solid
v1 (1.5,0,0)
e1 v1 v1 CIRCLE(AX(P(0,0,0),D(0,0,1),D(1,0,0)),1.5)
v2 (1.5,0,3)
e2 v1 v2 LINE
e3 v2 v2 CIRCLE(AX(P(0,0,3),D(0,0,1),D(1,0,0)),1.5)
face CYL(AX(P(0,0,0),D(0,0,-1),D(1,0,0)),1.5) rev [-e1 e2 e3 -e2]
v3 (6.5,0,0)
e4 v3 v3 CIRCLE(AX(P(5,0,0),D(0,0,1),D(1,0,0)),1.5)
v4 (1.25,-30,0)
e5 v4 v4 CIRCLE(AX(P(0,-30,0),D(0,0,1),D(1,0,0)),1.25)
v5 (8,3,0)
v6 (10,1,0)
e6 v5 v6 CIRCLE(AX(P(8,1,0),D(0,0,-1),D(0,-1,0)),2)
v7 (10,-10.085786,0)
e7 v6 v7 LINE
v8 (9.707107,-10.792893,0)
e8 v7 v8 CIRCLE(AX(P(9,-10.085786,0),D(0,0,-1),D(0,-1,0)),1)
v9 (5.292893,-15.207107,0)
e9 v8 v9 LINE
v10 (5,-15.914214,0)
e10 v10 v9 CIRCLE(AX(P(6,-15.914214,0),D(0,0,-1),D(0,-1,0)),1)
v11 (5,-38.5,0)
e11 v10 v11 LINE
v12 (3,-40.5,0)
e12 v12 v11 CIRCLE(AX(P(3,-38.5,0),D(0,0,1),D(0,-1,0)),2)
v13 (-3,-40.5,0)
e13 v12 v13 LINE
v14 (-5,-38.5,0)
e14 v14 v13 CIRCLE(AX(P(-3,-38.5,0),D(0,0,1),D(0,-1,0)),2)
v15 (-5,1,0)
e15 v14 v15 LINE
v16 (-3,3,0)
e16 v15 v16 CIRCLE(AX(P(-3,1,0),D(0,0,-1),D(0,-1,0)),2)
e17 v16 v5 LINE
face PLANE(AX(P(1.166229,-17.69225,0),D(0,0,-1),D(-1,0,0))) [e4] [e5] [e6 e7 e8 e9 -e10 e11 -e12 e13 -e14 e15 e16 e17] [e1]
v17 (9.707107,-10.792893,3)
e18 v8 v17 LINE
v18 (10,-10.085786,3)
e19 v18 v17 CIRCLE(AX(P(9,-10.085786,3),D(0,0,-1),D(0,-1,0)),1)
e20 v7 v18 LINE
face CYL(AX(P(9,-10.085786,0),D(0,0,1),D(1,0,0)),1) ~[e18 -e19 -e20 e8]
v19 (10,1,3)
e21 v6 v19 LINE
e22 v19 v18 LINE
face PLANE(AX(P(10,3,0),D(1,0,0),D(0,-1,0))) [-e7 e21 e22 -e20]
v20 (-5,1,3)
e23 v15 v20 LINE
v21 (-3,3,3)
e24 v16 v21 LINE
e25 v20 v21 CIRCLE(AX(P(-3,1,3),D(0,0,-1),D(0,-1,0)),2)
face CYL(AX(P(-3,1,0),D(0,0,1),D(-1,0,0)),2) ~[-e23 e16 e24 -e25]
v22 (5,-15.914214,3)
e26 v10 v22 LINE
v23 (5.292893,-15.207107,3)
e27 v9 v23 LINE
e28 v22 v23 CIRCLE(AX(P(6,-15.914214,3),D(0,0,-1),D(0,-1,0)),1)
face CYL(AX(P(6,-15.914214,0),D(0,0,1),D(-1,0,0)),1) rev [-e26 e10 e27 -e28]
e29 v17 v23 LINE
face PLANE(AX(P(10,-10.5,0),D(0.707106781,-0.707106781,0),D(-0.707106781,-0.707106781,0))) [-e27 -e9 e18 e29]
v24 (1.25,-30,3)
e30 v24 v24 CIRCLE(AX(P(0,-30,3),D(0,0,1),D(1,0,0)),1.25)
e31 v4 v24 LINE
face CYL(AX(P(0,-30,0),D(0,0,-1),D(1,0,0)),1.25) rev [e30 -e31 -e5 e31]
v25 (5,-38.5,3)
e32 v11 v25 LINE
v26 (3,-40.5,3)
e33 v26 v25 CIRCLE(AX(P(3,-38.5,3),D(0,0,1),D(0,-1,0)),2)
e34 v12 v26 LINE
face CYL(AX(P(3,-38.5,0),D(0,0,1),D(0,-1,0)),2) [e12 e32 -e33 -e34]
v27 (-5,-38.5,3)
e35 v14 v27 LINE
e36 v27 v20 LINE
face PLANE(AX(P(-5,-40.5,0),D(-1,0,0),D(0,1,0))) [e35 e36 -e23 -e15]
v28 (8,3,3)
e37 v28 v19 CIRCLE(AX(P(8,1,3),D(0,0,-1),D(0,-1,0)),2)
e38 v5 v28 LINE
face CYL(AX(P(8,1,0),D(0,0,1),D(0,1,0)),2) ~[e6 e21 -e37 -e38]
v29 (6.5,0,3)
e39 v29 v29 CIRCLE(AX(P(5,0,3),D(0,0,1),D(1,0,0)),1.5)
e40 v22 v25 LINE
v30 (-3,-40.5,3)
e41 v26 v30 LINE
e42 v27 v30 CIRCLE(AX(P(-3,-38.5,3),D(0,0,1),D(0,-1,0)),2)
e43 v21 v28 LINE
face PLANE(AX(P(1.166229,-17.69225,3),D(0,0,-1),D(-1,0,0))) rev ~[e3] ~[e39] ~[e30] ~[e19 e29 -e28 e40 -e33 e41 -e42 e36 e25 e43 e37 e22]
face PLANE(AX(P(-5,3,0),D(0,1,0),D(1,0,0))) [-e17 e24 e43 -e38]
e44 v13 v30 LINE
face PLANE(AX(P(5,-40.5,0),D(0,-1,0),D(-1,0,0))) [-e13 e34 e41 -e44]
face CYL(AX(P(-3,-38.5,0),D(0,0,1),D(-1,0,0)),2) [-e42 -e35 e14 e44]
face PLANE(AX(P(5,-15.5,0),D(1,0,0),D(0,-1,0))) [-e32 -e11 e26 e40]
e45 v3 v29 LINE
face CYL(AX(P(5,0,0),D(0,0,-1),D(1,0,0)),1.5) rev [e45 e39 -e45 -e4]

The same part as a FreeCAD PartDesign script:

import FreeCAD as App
import Part
import Sketcher
from FreeCAD import Vector
Q = App.Units.Quantity


def edges_at(feature, points):
    """Names of the edges that pass closest to the given points."""
    edges = feature.Shape.Edges
    near = lambda p: min(range(len(edges)), key=lambda i: edges[i].distToShape(Part.Vertex(*p))[0])
    return sorted({f"Edge{near(p) + 1}" for p in points})


def add_polygon(sketch, points):
    """Adds a closed chain of lines whose ends are joined by coincident constraints."""
    first, n = sketch.GeometryCount, len(points)
    for a, b in zip(points, points[1:] + points[:1]):
        sketch.addGeometry(Part.LineSegment(App.Vector(*a, 0), App.Vector(*b, 0)), False)
    for i in range(n):
        sketch.addConstraint(Sketcher.Constraint("Coincident", first + i, 2, first + (i + 1) % n, 1))

doc = App.newDocument("Part")
body = doc.addObject("PartDesign::Body", "Body")

sketch1 = doc.addObject("Sketcher::SketchObject", "Sketch")
body.addObject(sketch1)
sketch1.AttachmentSupport = (doc.XY_Plane, [""])
sketch1.MapMode = "FlatFace"
add_polygon(sketch1, [(-5, 3), (-5, -40.5), (5, -40.5), (5, -15.5), (10, -10.5), (10, 3)])
sketch1.addGeometry(Part.Circle(Vector(0, -30, 0), Vector(0, 0, 1), 1.2), False)
sketch1.addGeometry(Part.Circle(Vector(5, 0, 0), Vector(0, 0, 1), 1.5), False)
sketch1.addGeometry(Part.Circle(Vector(0, 0, 0), Vector(0, 0, 1), 1.5), False)
sketch1.addConstraint([
    Sketcher.Constraint("Vertical", 0),
    Sketcher.Constraint("Horizontal", 1),
    Sketcher.Constraint("Vertical", 2),
    Sketcher.Constraint("Vertical", 4),
    Sketcher.Constraint("Horizontal", 5),
    Sketcher.Constraint("Coincident", 8, 3, -1, 1),
    Sketcher.Constraint("Equal", 7, 8),
    Sketcher.Constraint("PointOnObject", 6, 3, -2),
    Sketcher.Constraint("PointOnObject", 7, 3, -1),
    Sketcher.Constraint("Vertical", 7, 3, 1, 2),
    Sketcher.Constraint("Diameter", 7, Q("3 mm")),
    Sketcher.Constraint("Diameter", 6, Q("2.5 mm")),
    Sketcher.Constraint("DistanceX", 1, 1, 1, 2, Q("10 mm")),
    Sketcher.Constraint("DistanceX", 5, 2, 5, 1, Q("15 mm")),
    Sketcher.Constraint("DistanceY", 2, 1, 2, 2, Q("25 mm")),
    Sketcher.Constraint("Angle", 3, Q("45 deg")),
    Sketcher.Constraint("DistanceY", 0, 2, 0, 1, Q("43.5 mm")),
    Sketcher.Constraint("DistanceY", 6, 3, -1, 1, Q("30 mm")),
    Sketcher.Constraint("DistanceX", -1, 1, 7, 3, Q("5 mm")),
    Sketcher.Constraint("DistanceY", -1, 1, 4, 2, Q("3 mm")),
])
pad1 = doc.addObject("PartDesign::Pad", "Pad")
body.addObject(pad1)
pad1.Profile = sketch1
pad1.Length = 3
doc.recompute()

fillet = doc.addObject("PartDesign::Fillet", "Fillet")
body.addObject(fillet)
fillet.Base = (pad1, edges_at(pad1, [
    (10, 3, 1.5),
    (-5, 3, 1.5),
    (-5, -40.5, 1.5),
    (5, -40.5, 1.5),
]))
fillet.Radius = 2
doc.recompute()

fillet2 = doc.addObject("PartDesign::Fillet", "Fillet001")
body.addObject(fillet2)
fillet2.Base = (fillet, edges_at(fillet, [(10, -10.5, 1.5), (5, -15.5, 1.5)]))
fillet2.Radius = 1

doc.recompute()
